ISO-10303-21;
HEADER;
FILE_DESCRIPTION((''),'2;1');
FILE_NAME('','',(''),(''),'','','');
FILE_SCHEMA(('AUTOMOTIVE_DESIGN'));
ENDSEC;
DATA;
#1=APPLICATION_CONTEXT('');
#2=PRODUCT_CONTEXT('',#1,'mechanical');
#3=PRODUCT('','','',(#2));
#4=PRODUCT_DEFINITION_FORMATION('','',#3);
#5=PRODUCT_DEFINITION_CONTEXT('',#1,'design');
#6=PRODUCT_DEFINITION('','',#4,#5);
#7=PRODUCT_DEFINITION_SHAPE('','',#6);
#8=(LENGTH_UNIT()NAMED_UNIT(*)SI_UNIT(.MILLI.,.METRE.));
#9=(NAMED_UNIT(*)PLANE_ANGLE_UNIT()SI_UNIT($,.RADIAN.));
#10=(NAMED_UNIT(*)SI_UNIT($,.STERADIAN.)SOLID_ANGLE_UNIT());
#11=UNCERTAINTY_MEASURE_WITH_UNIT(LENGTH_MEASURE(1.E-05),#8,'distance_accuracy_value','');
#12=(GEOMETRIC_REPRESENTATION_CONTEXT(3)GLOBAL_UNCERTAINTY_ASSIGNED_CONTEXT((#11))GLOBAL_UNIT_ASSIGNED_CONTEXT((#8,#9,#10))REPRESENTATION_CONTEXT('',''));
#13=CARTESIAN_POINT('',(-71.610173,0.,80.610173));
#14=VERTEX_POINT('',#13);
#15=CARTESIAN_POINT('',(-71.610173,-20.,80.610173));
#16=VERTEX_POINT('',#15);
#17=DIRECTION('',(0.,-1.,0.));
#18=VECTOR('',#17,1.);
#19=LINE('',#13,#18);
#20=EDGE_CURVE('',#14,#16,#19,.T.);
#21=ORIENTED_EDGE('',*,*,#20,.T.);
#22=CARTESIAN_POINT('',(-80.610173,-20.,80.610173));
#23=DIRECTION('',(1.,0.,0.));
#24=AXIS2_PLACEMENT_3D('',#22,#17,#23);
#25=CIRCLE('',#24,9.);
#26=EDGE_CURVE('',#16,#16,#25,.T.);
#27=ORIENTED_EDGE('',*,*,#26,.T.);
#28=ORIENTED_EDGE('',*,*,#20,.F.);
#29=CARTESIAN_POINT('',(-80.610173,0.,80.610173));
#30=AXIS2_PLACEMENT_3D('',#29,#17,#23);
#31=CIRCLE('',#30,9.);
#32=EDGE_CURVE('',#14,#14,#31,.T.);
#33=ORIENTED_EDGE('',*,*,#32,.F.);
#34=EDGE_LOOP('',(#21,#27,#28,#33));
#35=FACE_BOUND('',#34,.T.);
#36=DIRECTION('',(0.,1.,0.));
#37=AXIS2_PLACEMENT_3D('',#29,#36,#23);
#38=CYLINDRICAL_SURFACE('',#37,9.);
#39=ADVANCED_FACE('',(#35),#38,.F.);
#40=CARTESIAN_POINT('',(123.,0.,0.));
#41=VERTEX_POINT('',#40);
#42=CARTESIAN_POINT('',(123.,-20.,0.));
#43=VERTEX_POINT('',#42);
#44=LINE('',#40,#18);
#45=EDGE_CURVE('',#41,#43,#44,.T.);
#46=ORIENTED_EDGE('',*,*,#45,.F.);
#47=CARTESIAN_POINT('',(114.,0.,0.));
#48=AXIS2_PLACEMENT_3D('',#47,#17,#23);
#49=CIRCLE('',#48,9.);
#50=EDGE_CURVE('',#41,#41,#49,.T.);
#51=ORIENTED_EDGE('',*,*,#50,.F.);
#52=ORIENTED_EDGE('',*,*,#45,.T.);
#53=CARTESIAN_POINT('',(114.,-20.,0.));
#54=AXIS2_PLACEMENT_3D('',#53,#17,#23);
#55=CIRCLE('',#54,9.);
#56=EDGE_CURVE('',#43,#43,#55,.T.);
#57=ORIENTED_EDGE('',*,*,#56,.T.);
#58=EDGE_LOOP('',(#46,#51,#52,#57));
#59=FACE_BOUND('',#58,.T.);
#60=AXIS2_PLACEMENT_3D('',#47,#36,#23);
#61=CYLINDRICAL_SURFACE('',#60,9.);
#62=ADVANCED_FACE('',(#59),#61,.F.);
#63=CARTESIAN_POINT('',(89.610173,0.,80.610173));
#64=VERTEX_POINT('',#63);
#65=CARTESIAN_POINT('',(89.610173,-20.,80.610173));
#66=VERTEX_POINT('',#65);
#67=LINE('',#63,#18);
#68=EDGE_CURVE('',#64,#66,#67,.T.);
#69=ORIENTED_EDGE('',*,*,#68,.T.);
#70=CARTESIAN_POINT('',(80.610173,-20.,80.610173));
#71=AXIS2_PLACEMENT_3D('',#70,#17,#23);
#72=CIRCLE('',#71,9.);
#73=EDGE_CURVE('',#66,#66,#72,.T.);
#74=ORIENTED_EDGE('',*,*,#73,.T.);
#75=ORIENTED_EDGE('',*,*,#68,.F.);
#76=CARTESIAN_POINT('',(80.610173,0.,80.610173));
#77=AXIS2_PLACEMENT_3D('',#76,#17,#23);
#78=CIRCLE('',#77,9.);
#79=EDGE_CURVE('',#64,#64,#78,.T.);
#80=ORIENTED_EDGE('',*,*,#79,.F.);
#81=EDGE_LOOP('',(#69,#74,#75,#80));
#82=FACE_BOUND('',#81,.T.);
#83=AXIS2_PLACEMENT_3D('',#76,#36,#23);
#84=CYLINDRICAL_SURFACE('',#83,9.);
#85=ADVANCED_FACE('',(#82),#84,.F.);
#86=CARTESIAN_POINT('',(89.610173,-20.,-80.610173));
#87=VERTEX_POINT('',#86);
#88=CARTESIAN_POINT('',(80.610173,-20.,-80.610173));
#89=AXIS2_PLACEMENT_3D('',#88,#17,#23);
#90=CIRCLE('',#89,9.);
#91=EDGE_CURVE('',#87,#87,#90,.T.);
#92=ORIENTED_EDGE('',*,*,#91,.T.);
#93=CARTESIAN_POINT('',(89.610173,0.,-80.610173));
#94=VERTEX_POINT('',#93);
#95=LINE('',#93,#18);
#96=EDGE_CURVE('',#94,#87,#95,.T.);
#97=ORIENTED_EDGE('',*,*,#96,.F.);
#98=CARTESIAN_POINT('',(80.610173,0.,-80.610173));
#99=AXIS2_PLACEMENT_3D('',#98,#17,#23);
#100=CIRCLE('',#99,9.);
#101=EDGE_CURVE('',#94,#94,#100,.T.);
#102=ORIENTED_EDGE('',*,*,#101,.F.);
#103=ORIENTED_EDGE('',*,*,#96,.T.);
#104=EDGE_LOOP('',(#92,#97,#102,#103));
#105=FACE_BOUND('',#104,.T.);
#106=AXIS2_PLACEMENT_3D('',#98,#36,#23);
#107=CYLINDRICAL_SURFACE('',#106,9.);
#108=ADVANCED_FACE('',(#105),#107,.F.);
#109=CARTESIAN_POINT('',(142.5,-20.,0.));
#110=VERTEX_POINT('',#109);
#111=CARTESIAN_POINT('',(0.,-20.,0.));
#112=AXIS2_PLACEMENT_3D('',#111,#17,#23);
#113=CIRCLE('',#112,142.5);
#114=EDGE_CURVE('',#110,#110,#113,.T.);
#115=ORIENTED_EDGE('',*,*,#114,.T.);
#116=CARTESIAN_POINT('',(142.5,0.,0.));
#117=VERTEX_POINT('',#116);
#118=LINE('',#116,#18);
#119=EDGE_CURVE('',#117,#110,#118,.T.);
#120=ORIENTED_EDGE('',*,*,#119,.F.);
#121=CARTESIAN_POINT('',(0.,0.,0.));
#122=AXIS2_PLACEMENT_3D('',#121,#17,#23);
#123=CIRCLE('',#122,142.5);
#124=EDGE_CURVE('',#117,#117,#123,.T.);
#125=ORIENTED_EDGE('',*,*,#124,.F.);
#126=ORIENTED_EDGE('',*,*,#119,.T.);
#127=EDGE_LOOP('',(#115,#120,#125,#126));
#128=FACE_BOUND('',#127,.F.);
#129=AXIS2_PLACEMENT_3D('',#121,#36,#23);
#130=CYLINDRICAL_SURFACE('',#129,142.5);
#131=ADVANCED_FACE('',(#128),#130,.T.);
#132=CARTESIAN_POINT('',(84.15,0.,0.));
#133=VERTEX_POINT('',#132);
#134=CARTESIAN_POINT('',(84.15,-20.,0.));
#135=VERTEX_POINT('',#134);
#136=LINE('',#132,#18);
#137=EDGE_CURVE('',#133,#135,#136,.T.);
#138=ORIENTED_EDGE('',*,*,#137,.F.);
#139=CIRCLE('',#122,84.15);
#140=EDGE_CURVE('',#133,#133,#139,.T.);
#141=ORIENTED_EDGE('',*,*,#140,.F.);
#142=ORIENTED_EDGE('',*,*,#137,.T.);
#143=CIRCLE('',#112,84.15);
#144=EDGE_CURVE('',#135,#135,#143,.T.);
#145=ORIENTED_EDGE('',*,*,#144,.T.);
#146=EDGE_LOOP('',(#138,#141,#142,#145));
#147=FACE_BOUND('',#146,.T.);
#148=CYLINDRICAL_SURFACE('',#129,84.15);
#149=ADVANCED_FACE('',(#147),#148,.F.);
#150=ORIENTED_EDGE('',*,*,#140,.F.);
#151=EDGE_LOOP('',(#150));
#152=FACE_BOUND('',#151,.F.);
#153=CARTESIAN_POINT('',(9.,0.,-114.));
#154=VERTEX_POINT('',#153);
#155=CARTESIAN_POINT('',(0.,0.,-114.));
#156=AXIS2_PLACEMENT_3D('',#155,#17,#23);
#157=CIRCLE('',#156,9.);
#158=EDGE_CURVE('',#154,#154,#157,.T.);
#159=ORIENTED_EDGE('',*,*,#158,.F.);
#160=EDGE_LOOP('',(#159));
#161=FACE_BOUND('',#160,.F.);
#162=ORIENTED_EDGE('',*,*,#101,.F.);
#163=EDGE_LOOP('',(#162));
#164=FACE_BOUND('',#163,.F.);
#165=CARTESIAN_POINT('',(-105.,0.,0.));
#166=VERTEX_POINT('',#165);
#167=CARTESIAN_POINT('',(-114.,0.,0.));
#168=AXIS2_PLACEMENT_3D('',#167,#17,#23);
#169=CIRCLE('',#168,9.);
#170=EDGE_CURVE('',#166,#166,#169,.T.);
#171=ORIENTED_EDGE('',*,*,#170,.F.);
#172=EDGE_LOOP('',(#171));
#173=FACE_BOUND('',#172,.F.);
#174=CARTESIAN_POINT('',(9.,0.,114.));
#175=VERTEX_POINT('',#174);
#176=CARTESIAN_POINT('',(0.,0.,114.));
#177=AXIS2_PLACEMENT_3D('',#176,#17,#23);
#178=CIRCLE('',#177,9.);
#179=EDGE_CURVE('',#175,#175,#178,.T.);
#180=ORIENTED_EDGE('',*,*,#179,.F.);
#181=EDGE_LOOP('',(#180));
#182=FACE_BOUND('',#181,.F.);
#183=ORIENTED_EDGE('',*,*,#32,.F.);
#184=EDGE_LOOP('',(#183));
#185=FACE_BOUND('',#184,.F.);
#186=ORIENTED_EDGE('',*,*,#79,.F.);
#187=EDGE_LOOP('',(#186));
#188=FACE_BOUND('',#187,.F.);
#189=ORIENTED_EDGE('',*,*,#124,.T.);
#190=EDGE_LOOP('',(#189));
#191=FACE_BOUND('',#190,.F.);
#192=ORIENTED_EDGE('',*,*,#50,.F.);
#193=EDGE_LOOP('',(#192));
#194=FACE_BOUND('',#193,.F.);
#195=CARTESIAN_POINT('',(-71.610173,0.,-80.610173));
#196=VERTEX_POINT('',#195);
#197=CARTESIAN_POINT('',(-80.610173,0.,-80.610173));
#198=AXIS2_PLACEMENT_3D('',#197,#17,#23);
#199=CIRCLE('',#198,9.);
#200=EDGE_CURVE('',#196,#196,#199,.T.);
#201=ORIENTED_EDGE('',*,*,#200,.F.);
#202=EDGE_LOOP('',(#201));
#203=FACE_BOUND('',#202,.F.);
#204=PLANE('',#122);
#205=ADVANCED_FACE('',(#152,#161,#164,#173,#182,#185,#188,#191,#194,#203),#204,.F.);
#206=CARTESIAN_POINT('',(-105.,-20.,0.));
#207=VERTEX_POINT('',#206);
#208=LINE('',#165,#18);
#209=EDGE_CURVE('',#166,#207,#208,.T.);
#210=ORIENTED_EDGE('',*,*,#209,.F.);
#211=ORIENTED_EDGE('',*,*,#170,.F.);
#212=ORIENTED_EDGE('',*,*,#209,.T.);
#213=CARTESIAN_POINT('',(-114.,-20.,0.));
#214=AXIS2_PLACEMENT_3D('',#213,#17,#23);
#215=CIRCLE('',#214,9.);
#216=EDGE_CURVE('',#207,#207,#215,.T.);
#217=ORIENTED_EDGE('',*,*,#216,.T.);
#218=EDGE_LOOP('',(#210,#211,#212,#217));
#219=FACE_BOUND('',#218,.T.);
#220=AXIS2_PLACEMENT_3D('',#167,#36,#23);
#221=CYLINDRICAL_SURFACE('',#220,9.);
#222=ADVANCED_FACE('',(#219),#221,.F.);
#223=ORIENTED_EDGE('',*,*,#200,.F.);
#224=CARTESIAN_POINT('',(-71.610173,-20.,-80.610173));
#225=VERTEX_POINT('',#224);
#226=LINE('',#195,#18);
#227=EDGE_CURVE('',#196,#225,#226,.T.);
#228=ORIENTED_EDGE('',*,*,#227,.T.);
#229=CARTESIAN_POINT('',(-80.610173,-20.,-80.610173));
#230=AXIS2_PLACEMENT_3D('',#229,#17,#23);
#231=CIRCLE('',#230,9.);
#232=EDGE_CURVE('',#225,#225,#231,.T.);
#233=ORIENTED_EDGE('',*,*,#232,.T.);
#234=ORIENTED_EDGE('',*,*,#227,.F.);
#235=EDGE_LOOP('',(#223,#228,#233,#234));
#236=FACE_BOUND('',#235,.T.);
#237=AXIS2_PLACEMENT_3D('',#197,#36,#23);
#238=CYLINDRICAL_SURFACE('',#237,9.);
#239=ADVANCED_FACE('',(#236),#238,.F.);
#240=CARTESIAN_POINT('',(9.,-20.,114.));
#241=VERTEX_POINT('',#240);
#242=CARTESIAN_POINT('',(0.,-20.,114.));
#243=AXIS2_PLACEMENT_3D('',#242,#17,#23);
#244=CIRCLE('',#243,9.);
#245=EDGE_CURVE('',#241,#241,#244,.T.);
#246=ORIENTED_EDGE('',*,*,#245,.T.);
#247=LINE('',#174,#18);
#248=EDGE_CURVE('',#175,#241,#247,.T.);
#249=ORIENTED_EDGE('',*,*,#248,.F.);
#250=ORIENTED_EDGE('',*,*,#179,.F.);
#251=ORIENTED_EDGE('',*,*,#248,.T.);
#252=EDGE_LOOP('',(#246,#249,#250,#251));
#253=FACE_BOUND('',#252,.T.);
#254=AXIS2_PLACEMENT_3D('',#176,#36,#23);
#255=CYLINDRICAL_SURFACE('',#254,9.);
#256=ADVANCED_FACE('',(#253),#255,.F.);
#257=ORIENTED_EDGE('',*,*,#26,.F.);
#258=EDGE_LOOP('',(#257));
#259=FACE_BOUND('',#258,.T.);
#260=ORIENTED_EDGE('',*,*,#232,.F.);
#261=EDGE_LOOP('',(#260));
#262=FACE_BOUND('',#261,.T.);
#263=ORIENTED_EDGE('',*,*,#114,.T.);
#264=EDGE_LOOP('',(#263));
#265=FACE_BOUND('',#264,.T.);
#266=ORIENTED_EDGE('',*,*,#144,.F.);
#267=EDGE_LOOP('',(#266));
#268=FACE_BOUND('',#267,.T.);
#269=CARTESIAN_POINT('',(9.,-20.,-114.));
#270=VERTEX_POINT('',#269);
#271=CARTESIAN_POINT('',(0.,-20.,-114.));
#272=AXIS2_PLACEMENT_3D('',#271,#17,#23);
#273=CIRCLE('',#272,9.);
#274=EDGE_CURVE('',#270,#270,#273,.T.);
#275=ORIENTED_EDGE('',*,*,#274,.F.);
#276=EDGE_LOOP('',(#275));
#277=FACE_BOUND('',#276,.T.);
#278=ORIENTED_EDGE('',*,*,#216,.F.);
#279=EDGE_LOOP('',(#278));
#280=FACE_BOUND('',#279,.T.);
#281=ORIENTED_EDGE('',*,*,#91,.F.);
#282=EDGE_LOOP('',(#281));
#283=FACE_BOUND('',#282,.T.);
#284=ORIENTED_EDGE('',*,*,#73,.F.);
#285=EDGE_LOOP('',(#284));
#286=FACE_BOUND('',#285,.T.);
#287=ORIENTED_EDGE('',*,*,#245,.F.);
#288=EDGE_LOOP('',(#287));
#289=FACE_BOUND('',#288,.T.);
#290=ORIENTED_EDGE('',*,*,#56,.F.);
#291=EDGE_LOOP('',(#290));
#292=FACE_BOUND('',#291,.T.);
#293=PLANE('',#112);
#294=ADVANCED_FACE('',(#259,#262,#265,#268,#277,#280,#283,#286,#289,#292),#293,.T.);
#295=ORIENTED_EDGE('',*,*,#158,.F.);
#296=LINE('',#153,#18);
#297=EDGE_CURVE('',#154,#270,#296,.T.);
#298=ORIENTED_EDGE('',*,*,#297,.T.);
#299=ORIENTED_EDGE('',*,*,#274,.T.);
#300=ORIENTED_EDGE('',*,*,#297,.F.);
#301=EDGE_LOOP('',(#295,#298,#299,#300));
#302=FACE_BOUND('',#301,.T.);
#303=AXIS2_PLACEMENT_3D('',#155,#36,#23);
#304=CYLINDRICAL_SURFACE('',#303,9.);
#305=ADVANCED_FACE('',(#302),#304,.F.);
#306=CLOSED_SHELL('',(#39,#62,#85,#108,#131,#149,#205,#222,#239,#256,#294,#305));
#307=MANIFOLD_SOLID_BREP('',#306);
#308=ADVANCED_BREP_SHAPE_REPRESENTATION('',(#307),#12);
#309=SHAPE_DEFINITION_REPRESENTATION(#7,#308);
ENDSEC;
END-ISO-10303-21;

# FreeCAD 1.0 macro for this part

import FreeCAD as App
import Part
import Sketcher

doc = App.newDocument("Part")
body = doc.addObject("PartDesign::Body", "Body")

sketch1 = body.newObject("Sketcher::SketchObject", "Sketch")
sketch1.AttachmentSupport = (doc.getObject("XZ_Plane"), [""])
sketch1.MapMode = "FlatFace"
sketch1.addGeometry(Part.Circle(App.Vector(0, 0, 0), App.Vector(0, 0, 1), 142.5), False)
sketch1.addGeometry(Part.Circle(App.Vector(-80.610173, -80.610173, 0), App.Vector(0, 0, 1), 9), False)
sketch1.addGeometry(Part.Circle(App.Vector(0, -114, 0), App.Vector(0, 0, 1), 9), False)
sketch1.addGeometry(Part.Circle(App.Vector(80.610173, -80.610173, 0), App.Vector(0, 0, 1), 9), False)
sketch1.addGeometry(Part.Circle(App.Vector(-114, 0, 0), App.Vector(0, 0, 1), 9), False)
sketch1.addGeometry(Part.Circle(App.Vector(-80.610173, 80.610173, 0), App.Vector(0, 0, 1), 9), False)
sketch1.addGeometry(Part.Circle(App.Vector(0, 0, 0), App.Vector(0, 0, 1), 84.15), False)
sketch1.addGeometry(Part.Circle(App.Vector(114, 0, 0), App.Vector(0, 0, 1), 9), False)
sketch1.addGeometry(Part.Circle(App.Vector(0, 114, 0), App.Vector(0, 0, 1), 9), False)
sketch1.addGeometry(Part.Circle(App.Vector(80.610173, 80.610173, 0), App.Vector(0, 0, 1), 9), False)
sketch1.addConstraint(Sketcher.Constraint("Coincident", 0, 3, -1, 1))
sketch1.addConstraint(Sketcher.Constraint("Coincident", 6, 3, -1, 1))
sketch1.addConstraint(Sketcher.Constraint("Equal", 1, 2))
sketch1.addConstraint(Sketcher.Constraint("Equal", 2, 3))
sketch1.addConstraint(Sketcher.Constraint("Equal", 3, 4))
sketch1.addConstraint(Sketcher.Constraint("Equal", 4, 5))
sketch1.addConstraint(Sketcher.Constraint("Equal", 5, 7))
sketch1.addConstraint(Sketcher.Constraint("Equal", 7, 8))
sketch1.addConstraint(Sketcher.Constraint("Equal", 8, 9))
sketch1.addConstraint(Sketcher.Constraint("Symmetric", 3, 3, 5, 3, -1, 1))
sketch1.addConstraint(Sketcher.Constraint("Symmetric", 4, 3, 7, 3, -1, 1))
sketch1.addConstraint(Sketcher.Constraint("Symmetric", 2, 3, 8, 3, -1, 1))
sketch1.addConstraint(Sketcher.Constraint("Symmetric", 1, 3, 9, 3, -1, 1))
sketch1.addConstraint(Sketcher.Constraint("Symmetric", 1, 3, 3, 3, -2))
sketch1.addConstraint(Sketcher.Constraint("PointOnObject", 2, 3, -2))
sketch1.addConstraint(Sketcher.Constraint("PointOnObject", 4, 3, -1))
sketch1.addConstraint(Sketcher.Constraint("Diameter", 0, 285.0))
sketch1.addConstraint(Sketcher.Constraint("Diameter", 1, 18.0))
sketch1.addConstraint(Sketcher.Constraint("Diameter", 6, 168.3))
sketch1.addConstraint(Sketcher.Constraint("DistanceY", 2, 3, -1, 1, 114.0))
sketch1.addConstraint(Sketcher.Constraint("DistanceX", 4, 3, -1, 1, 114.0))
sketch1.addConstraint(Sketcher.Constraint("DistanceX", 1, 3, -1, 1, 80.610173))
sketch1.addConstraint(Sketcher.Constraint("DistanceY", 1, 3, -1, 1, 80.610173))
pad1 = body.newObject("PartDesign::Pad", "Pad")
pad1.Profile = sketch1
pad1.Length = 20

doc.recompute()
